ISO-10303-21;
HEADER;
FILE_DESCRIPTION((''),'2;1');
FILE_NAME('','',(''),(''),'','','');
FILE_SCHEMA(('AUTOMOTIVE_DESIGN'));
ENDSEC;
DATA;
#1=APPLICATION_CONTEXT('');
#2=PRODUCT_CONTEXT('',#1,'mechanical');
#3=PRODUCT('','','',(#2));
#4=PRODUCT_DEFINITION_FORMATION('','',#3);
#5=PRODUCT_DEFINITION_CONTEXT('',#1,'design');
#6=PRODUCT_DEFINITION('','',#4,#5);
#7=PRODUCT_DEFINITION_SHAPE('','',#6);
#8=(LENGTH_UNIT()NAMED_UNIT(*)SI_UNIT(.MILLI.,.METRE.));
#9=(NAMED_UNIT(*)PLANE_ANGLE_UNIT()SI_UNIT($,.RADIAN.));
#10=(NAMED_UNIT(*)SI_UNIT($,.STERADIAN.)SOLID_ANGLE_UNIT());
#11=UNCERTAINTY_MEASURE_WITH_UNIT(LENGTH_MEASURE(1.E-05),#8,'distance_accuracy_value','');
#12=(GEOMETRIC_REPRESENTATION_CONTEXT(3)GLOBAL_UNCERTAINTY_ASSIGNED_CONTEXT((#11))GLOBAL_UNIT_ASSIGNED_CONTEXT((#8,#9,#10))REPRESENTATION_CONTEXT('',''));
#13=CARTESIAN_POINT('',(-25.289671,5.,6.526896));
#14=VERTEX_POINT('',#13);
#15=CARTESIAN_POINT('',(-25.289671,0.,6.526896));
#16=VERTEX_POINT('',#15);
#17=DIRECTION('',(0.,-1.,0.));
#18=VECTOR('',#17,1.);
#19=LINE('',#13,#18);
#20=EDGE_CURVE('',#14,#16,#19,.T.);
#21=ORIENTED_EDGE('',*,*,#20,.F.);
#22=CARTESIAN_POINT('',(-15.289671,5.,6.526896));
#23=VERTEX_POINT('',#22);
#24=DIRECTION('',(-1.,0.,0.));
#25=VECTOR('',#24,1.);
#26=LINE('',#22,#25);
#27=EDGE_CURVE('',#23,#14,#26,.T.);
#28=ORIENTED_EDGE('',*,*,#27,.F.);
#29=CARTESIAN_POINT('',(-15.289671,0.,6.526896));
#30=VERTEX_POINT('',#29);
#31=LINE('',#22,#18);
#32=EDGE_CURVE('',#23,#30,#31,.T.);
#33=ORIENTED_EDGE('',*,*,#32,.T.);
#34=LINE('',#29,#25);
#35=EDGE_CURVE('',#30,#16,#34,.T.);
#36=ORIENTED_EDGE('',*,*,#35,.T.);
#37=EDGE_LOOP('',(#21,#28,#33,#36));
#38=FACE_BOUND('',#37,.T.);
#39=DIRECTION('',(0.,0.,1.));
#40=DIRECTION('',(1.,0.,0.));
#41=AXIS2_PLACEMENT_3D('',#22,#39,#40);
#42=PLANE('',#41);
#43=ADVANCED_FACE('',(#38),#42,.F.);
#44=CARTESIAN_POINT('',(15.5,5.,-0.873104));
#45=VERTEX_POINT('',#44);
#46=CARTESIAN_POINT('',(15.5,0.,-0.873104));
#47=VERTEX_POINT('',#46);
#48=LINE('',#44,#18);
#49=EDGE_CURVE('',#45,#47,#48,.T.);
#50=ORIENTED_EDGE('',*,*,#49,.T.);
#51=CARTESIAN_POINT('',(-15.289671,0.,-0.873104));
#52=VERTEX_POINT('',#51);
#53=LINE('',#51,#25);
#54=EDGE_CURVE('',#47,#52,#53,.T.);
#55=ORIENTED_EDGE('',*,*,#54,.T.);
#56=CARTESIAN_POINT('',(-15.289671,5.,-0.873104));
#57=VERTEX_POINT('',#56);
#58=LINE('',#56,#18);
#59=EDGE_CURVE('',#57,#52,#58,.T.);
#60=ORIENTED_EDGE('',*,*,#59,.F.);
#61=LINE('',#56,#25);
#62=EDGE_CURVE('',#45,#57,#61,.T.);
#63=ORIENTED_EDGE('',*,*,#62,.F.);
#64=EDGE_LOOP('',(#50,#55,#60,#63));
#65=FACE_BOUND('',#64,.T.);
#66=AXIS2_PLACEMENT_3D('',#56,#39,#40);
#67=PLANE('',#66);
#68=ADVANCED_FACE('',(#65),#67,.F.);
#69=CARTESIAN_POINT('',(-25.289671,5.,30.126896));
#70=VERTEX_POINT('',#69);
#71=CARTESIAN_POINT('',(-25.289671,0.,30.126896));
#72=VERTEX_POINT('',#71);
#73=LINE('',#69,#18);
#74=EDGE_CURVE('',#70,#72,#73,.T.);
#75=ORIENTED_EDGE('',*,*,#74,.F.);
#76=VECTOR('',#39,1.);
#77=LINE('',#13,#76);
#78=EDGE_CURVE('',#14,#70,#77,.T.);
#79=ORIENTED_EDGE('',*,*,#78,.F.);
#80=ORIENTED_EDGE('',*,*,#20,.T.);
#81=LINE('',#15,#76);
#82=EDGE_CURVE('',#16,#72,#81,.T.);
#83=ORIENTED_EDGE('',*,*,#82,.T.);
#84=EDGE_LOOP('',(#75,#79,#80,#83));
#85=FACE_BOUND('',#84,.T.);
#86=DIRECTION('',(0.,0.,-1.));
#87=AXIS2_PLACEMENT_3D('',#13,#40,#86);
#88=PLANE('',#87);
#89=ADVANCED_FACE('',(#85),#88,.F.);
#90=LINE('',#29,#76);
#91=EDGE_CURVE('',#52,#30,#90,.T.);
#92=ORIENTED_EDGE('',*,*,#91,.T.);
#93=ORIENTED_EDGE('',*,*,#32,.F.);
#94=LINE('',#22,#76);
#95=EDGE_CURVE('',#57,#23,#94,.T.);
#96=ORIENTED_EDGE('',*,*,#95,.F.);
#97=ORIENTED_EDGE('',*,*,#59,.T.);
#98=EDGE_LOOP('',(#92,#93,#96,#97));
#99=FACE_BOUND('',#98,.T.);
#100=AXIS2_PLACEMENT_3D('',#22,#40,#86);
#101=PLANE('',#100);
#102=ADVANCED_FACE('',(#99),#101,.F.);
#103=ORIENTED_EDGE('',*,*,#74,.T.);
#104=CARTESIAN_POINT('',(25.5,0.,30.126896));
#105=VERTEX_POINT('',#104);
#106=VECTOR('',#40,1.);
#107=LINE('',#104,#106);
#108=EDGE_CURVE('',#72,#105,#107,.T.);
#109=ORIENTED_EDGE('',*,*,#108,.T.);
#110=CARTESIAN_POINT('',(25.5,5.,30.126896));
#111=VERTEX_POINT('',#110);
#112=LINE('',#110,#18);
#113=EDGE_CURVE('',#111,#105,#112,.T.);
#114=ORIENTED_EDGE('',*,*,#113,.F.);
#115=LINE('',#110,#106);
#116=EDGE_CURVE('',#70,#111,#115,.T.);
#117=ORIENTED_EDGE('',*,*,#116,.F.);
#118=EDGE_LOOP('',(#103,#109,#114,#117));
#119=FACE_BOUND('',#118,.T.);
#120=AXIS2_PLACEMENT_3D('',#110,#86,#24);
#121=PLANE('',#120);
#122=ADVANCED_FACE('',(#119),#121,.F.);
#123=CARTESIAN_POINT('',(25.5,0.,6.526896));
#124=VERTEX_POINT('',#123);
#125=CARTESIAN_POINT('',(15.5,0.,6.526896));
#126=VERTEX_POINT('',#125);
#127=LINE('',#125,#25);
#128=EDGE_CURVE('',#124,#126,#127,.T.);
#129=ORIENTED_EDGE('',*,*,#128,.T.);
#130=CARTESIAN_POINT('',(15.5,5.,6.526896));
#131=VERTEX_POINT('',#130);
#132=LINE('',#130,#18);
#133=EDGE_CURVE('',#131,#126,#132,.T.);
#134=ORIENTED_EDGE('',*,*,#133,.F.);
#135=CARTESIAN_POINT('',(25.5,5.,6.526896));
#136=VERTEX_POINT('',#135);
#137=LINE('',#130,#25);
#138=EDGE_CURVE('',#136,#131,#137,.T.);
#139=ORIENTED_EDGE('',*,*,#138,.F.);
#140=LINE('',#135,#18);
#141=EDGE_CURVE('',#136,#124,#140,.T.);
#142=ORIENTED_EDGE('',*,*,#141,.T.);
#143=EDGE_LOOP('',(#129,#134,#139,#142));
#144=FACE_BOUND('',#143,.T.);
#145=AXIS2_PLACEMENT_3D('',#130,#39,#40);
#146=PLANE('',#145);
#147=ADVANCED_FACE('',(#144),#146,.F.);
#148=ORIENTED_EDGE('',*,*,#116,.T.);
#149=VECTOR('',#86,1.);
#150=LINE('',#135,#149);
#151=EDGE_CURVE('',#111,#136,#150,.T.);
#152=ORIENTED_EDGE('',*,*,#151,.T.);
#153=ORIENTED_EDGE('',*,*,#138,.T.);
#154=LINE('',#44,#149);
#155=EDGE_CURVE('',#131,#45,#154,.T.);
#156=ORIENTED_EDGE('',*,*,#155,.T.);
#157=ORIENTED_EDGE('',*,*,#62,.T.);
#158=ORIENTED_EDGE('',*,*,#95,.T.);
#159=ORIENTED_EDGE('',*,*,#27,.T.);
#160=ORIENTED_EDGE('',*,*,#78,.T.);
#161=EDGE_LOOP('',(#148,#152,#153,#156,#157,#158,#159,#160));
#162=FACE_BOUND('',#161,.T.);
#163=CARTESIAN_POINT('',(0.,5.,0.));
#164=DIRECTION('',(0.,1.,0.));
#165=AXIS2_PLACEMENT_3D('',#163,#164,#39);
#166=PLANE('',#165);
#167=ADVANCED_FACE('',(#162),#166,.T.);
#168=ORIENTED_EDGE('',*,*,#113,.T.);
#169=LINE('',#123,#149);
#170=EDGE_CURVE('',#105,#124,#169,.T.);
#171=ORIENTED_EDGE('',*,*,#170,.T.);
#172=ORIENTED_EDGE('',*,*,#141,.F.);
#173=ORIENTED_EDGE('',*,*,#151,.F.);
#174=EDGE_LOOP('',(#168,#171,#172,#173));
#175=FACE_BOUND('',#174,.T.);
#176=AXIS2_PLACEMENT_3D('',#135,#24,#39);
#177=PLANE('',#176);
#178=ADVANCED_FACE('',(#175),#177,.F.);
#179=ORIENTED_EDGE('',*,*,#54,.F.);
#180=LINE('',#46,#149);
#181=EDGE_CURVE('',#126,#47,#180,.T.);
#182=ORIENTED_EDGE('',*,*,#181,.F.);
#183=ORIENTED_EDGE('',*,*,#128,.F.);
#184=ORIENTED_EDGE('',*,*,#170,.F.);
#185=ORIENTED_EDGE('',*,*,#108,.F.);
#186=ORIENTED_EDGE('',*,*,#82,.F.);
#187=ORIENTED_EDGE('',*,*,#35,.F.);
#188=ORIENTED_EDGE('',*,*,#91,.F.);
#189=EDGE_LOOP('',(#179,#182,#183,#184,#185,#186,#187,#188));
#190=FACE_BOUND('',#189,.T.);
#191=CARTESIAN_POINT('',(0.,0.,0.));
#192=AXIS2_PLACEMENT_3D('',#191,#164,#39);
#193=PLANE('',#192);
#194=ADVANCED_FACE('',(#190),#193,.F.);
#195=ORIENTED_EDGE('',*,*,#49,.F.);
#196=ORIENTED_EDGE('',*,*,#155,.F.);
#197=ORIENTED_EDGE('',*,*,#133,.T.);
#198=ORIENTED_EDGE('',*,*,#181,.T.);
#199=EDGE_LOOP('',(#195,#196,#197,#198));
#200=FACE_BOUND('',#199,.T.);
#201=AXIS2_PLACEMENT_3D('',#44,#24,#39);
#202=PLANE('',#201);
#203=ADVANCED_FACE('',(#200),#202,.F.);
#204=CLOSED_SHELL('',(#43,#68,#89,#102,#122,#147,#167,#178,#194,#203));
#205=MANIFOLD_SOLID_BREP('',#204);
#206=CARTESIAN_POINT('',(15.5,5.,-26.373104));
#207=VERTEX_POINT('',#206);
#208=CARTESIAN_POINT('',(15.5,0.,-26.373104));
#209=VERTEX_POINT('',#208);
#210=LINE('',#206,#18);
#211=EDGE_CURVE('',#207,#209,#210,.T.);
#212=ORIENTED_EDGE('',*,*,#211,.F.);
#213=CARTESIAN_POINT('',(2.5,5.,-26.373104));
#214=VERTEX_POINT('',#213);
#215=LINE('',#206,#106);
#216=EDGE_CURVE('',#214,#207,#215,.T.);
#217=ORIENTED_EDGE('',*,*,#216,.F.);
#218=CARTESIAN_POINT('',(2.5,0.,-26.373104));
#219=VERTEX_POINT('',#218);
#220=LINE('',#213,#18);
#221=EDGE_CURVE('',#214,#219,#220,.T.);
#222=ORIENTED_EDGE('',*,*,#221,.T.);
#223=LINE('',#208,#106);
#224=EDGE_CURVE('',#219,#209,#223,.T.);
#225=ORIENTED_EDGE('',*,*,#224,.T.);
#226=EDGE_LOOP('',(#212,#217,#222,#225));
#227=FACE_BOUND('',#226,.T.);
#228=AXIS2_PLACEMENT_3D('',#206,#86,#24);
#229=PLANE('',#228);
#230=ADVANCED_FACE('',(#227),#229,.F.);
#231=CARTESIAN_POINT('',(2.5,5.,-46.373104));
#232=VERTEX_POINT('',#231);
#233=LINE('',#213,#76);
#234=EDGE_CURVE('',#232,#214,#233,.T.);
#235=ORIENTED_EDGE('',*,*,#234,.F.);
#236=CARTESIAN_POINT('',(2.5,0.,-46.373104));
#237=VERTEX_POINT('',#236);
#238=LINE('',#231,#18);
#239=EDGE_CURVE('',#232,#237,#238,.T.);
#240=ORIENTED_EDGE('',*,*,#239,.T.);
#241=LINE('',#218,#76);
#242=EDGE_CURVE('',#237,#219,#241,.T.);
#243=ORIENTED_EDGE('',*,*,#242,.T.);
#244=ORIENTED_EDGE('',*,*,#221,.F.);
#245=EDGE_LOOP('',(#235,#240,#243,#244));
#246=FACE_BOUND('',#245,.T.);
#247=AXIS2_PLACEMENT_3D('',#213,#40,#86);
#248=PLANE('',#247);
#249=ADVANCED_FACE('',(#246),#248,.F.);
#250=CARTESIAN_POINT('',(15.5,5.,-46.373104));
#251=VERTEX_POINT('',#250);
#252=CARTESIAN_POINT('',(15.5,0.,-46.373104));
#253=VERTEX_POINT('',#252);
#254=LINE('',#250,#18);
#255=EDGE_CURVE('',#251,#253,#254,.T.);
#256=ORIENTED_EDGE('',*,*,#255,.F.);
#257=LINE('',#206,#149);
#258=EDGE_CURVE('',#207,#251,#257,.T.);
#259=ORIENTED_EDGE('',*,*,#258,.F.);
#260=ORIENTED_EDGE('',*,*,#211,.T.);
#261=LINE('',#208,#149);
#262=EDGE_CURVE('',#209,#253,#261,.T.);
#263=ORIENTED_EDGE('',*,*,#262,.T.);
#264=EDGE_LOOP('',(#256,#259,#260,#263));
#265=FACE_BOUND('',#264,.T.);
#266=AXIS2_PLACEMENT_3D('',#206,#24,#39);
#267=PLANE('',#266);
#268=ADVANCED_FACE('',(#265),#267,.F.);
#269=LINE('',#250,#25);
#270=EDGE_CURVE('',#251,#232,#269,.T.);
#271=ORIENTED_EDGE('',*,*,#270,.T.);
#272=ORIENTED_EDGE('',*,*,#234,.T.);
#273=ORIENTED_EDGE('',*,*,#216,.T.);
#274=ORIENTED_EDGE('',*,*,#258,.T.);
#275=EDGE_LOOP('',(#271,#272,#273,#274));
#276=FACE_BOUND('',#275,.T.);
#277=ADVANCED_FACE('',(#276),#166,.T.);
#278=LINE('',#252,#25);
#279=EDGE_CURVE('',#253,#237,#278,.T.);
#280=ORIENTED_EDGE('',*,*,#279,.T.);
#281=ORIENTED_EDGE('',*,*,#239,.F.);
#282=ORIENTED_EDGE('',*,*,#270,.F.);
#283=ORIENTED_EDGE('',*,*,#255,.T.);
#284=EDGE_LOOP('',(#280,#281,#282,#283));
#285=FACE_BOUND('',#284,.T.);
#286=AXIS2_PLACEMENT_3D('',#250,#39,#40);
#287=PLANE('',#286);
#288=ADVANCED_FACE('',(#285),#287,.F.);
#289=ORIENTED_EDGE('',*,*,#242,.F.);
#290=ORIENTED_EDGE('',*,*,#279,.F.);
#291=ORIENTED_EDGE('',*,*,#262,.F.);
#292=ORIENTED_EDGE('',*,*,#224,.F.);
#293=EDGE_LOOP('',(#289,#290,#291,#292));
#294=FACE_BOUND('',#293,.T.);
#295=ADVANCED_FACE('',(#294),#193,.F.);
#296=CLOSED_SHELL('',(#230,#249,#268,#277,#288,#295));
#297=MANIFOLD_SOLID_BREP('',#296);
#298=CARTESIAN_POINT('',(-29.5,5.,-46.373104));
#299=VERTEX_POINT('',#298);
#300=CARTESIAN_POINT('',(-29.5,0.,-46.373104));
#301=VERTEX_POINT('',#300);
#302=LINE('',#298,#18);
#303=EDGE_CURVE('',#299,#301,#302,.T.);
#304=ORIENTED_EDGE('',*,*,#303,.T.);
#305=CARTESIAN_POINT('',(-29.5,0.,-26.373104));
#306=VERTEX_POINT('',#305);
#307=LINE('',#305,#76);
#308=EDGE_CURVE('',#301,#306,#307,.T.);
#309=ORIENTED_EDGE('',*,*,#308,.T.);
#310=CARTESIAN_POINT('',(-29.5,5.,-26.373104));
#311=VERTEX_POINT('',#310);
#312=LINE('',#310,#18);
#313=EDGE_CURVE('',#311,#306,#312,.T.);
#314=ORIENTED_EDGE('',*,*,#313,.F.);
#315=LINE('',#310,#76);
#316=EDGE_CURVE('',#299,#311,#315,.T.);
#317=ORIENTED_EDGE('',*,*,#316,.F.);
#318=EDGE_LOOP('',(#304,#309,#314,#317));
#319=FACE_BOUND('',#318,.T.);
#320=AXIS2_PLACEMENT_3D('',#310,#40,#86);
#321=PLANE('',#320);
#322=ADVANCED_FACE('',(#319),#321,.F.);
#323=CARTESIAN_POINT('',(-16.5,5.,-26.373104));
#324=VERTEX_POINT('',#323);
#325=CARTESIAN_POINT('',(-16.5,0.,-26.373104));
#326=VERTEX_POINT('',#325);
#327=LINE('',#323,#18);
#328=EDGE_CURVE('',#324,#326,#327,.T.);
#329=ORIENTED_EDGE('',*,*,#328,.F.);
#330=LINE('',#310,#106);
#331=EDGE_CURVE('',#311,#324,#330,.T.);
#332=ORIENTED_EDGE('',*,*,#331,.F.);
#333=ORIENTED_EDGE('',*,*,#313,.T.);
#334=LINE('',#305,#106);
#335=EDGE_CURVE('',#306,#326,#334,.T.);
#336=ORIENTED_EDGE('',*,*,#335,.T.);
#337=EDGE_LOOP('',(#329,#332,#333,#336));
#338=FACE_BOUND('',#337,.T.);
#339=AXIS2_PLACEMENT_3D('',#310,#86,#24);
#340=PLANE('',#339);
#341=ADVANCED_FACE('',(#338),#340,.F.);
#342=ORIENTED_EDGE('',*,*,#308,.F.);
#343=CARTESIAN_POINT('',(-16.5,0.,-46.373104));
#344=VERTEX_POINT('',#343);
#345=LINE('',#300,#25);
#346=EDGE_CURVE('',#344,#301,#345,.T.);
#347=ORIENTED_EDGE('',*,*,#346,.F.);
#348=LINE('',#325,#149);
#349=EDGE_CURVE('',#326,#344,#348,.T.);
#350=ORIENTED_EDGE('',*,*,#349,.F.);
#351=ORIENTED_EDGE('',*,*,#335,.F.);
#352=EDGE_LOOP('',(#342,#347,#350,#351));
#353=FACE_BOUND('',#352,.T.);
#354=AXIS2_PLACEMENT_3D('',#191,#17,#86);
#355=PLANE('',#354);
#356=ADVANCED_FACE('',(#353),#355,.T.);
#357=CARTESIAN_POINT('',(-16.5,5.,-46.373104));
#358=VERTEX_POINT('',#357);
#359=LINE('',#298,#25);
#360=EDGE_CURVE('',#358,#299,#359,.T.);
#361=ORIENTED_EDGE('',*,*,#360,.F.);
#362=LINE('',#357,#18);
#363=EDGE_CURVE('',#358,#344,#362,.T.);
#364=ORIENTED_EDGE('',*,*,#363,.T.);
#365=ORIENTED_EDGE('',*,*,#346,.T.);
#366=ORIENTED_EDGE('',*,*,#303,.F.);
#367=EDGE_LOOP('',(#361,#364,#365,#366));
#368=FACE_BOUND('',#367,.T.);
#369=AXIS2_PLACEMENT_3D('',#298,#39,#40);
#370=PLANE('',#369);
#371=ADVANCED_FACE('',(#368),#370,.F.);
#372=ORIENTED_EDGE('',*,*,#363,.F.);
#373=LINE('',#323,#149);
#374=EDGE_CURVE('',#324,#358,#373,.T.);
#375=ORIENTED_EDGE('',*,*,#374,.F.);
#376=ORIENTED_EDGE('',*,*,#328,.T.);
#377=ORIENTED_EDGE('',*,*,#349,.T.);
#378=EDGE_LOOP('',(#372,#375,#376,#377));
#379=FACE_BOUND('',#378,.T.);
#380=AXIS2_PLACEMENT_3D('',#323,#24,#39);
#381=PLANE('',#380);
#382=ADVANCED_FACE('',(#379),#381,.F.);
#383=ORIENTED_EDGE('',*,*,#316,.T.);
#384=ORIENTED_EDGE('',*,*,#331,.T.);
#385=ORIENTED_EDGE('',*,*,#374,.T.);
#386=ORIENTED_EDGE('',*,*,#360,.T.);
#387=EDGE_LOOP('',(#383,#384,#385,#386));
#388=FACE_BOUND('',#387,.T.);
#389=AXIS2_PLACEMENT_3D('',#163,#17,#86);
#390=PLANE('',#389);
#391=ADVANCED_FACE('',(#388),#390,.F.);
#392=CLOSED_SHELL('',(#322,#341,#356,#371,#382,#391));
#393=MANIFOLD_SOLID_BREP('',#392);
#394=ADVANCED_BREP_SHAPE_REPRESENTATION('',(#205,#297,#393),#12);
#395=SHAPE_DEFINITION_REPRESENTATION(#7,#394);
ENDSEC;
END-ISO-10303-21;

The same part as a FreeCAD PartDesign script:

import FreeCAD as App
import Part
import Sketcher

V = App.Vector

doc = App.newDocument("Part")
params = doc.addObject("Spreadsheet::Sheet", "Params")
for row, (alias, value) in enumerate([
    ("sketch1_width", "10 mm"),
    ("sketch1_height", "23.6 mm"),
    ("sketch1_height2", "7.4 mm"),
    ("pad1_length", "5 mm"),
    ("sketch2_width", "13 mm"),
    ("sketch2_height", "20 mm"),
    ("pad2_length", "5 mm"),
    ("sketch3_width", "13 mm"),
    ("sketch3_height", "20 mm"),
    ("pad3_length", "5 mm"),
], start=1):
    params.set(f"A{row}", alias)
    params.set(f"B{row}", "=" + value)
    params.setAlias(f"B{row}", alias)

body = doc.addObject("PartDesign::Body", "Body")

# Sketch on XZ plane
sketch1 = body.newObject("Sketcher::SketchObject", "Sketch")
sketch1.AttachmentSupport = (doc.getObject("XZ_Plane"), [""])
sketch1.MapMode = "FlatFace"
sketch1.addGeometry(Part.LineSegment(V(-15.289671, 6.526896, 0), V(-25.289671, 6.526896, 0)), False)
sketch1.addGeometry(Part.LineSegment(V(-25.289671, 6.526896, 0), V(-25.289671, 30.126896, 0)), False)
sketch1.addGeometry(Part.LineSegment(V(-25.289671, 30.126896, 0), V(25.5, 30.126896, 0)), False)
sketch1.addGeometry(Part.LineSegment(V(25.5, 30.126896, 0), V(25.5, 6.526896, 0)), False)
sketch1.addGeometry(Part.LineSegment(V(25.5, 6.526896, 0), V(15.5, 6.526896, 0)), False)
sketch1.addGeometry(Part.LineSegment(V(15.5, 6.526896, 0), V(15.5, -0.873104, 0)), False)
sketch1.addGeometry(Part.LineSegment(V(15.5, -0.873104, 0), V(-15.289671, -0.873104, 0)), False)
sketch1.addGeometry(Part.LineSegment(V(-15.289671, -0.873104, 0), V(-15.289671, 6.526896, 0)), False)
sketch1.addConstraint(Sketcher.Constraint("Coincident", 0, 2, 1, 1))
sketch1.addConstraint(Sketcher.Constraint("Coincident", 1, 2, 2, 1))
sketch1.addConstraint(Sketcher.Constraint("Coincident", 2, 2, 3, 1))
sketch1.addConstraint(Sketcher.Constraint("Coincident", 3, 2, 4, 1))
sketch1.addConstraint(Sketcher.Constraint("Coincident", 4, 2, 5, 1))
sketch1.addConstraint(Sketcher.Constraint("Coincident", 5, 2, 6, 1))
sketch1.addConstraint(Sketcher.Constraint("Coincident", 6, 2, 7, 1))
sketch1.addConstraint(Sketcher.Constraint("Coincident", 7, 2, 0, 1))
sketch1.addConstraint(Sketcher.Constraint("Horizontal", 0))
sketch1.addConstraint(Sketcher.Constraint("Vertical", 1))
sketch1.addConstraint(Sketcher.Constraint("Horizontal", 2))
sketch1.addConstraint(Sketcher.Constraint("Vertical", 3))
sketch1.addConstraint(Sketcher.Constraint("Horizontal", 4))
sketch1.addConstraint(Sketcher.Constraint("Vertical", 5))
sketch1.addConstraint(Sketcher.Constraint("Horizontal", 6))
sketch1.addConstraint(Sketcher.Constraint("Vertical", 7))
sketch1.addConstraint(Sketcher.Constraint("Horizontal", 0, 2, 3, 2))
sketch1.addConstraint(Sketcher.Constraint("Equal", 0, 4))
sketch1.addConstraint(Sketcher.Constraint("DistanceX", 0, 2, 0, 1, 10.0))
sketch1.addConstraint(Sketcher.Constraint("DistanceY", 1, 1, 1, 2, 23.6))
sketch1.addConstraint(Sketcher.Constraint("DistanceY", 5, 2, 5, 1, 7.4))
sketch1.addConstraint(Sketcher.Constraint("DistanceX", -1, 1, 2, 2, 25.5))
sketch1.addConstraint(Sketcher.Constraint("DistanceX", 2, 1, 2, 2, 50.789671))
sketch1.addConstraint(Sketcher.Constraint("DistanceY", -1, 1, 0, 2, 6.526896))
sketch1.setExpression("Constraints[18]", "Params.sketch1_width")
sketch1.setExpression("Constraints[19]", "Params.sketch1_height")
sketch1.setExpression("Constraints[20]", "Params.sketch1_height2")
pad1 = body.newObject("PartDesign::Pad", "Pad")
pad1.Profile = sketch1
pad1.setExpression("Length", "Params.pad1_length")
pad1.Reversed = True
body2 = doc.addObject("PartDesign::Body", "Body001")

# Sketch on XZ plane
sketch2 = body2.newObject("Sketcher::SketchObject", "Sketch001")
sketch2.AttachmentSupport = (doc.getObject("XZ_Plane001"), [""])
sketch2.MapMode = "FlatFace"
sketch2.addGeometry(Part.LineSegment(V(-29.5, -46.373104, 0), V(-29.5, -26.373104, 0)), False)
sketch2.addGeometry(Part.LineSegment(V(-29.5, -26.373104, 0), V(-16.5, -26.373104, 0)), False)
sketch2.addGeometry(Part.LineSegment(V(-16.5, -26.373104, 0), V(-16.5, -46.373104, 0)), False)
sketch2.addGeometry(Part.LineSegment(V(-16.5, -46.373104, 0), V(-29.5, -46.373104, 0)), False)
sketch2.addConstraint(Sketcher.Constraint("Coincident", 0, 2, 1, 1))
sketch2.addConstraint(Sketcher.Constraint("Coincident", 1, 2, 2, 1))
sketch2.addConstraint(Sketcher.Constraint("Coincident", 2, 2, 3, 1))
sketch2.addConstraint(Sketcher.Constraint("Coincident", 3, 2, 0, 1))
sketch2.addConstraint(Sketcher.Constraint("Vertical", 0))
sketch2.addConstraint(Sketcher.Constraint("Horizontal", 1))
sketch2.addConstraint(Sketcher.Constraint("Vertical", 2))
sketch2.addConstraint(Sketcher.Constraint("Horizontal", 3))
sketch2.addConstraint(Sketcher.Constraint("DistanceX", 1, 1, 1, 2, 13.0))
sketch2.addConstraint(Sketcher.Constraint("DistanceY", 0, 1, 0, 2, 20.0))
sketch2.addConstraint(Sketcher.Constraint("DistanceX", 0, 2, -1, 1, 29.5))
sketch2.addConstraint(Sketcher.Constraint("DistanceY", 0, 2, -1, 1, 26.373104))
sketch2.setExpression("Constraints[8]", "Params.sketch2_width")
sketch2.setExpression("Constraints[9]", "Params.sketch2_height")
pad2 = body2.newObject("PartDesign::Pad", "Pad001")
pad2.Profile = sketch2
pad2.setExpression("Length", "Params.pad2_length")
pad2.Reversed = True
body3 = doc.addObject("PartDesign::Body", "Body002")

# Sketch on XZ plane
sketch3 = body3.newObject("Sketcher::SketchObject", "Sketch002")
sketch3.AttachmentSupport = (doc.getObject("XZ_Plane002"), [""])
sketch3.MapMode = "FlatFace"
sketch3.addGeometry(Part.LineSegment(V(2.5, -46.373104, 0), V(2.5, -26.373104, 0)), False)
sketch3.addGeometry(Part.LineSegment(V(2.5, -26.373104, 0), V(15.5, -26.373104, 0)), False)
sketch3.addGeometry(Part.LineSegment(V(15.5, -26.373104, 0), V(15.5, -46.373104, 0)), False)
sketch3.addGeometry(Part.LineSegment(V(15.5, -46.373104, 0), V(2.5, -46.373104, 0)), False)
sketch3.addConstraint(Sketcher.Constraint("Coincident", 0, 2, 1, 1))
sketch3.addConstraint(Sketcher.Constraint("Coincident", 1, 2, 2, 1))
sketch3.addConstraint(Sketcher.Constraint("Coincident", 2, 2, 3, 1))
sketch3.addConstraint(Sketcher.Constraint("Coincident", 3, 2, 0, 1))
sketch3.addConstraint(Sketcher.Constraint("Vertical", 0))
sketch3.addConstraint(Sketcher.Constraint("Horizontal", 1))
sketch3.addConstraint(Sketcher.Constraint("Vertical", 2))
sketch3.addConstraint(Sketcher.Constraint("Horizontal", 3))
sketch3.addConstraint(Sketcher.Constraint("DistanceX", 1, 1, 1, 2, 13.0))
sketch3.addConstraint(Sketcher.Constraint("DistanceY", 0, 1, 0, 2, 20.0))
sketch3.addConstraint(Sketcher.Constraint("DistanceX", -1, 1, 0, 2, 2.5))
sketch3.addConstraint(Sketcher.Constraint("DistanceY", 0, 2, -1, 1, 26.373104))
sketch3.setExpression("Constraints[8]", "Params.sketch3_width")
sketch3.setExpression("Constraints[9]", "Params.sketch3_height")
pad3 = body3.newObject("PartDesign::Pad", "Pad002")
pad3.Profile = sketch3
pad3.setExpression("Length", "Params.pad3_length")
pad3.Reversed = True

doc.recompute()
